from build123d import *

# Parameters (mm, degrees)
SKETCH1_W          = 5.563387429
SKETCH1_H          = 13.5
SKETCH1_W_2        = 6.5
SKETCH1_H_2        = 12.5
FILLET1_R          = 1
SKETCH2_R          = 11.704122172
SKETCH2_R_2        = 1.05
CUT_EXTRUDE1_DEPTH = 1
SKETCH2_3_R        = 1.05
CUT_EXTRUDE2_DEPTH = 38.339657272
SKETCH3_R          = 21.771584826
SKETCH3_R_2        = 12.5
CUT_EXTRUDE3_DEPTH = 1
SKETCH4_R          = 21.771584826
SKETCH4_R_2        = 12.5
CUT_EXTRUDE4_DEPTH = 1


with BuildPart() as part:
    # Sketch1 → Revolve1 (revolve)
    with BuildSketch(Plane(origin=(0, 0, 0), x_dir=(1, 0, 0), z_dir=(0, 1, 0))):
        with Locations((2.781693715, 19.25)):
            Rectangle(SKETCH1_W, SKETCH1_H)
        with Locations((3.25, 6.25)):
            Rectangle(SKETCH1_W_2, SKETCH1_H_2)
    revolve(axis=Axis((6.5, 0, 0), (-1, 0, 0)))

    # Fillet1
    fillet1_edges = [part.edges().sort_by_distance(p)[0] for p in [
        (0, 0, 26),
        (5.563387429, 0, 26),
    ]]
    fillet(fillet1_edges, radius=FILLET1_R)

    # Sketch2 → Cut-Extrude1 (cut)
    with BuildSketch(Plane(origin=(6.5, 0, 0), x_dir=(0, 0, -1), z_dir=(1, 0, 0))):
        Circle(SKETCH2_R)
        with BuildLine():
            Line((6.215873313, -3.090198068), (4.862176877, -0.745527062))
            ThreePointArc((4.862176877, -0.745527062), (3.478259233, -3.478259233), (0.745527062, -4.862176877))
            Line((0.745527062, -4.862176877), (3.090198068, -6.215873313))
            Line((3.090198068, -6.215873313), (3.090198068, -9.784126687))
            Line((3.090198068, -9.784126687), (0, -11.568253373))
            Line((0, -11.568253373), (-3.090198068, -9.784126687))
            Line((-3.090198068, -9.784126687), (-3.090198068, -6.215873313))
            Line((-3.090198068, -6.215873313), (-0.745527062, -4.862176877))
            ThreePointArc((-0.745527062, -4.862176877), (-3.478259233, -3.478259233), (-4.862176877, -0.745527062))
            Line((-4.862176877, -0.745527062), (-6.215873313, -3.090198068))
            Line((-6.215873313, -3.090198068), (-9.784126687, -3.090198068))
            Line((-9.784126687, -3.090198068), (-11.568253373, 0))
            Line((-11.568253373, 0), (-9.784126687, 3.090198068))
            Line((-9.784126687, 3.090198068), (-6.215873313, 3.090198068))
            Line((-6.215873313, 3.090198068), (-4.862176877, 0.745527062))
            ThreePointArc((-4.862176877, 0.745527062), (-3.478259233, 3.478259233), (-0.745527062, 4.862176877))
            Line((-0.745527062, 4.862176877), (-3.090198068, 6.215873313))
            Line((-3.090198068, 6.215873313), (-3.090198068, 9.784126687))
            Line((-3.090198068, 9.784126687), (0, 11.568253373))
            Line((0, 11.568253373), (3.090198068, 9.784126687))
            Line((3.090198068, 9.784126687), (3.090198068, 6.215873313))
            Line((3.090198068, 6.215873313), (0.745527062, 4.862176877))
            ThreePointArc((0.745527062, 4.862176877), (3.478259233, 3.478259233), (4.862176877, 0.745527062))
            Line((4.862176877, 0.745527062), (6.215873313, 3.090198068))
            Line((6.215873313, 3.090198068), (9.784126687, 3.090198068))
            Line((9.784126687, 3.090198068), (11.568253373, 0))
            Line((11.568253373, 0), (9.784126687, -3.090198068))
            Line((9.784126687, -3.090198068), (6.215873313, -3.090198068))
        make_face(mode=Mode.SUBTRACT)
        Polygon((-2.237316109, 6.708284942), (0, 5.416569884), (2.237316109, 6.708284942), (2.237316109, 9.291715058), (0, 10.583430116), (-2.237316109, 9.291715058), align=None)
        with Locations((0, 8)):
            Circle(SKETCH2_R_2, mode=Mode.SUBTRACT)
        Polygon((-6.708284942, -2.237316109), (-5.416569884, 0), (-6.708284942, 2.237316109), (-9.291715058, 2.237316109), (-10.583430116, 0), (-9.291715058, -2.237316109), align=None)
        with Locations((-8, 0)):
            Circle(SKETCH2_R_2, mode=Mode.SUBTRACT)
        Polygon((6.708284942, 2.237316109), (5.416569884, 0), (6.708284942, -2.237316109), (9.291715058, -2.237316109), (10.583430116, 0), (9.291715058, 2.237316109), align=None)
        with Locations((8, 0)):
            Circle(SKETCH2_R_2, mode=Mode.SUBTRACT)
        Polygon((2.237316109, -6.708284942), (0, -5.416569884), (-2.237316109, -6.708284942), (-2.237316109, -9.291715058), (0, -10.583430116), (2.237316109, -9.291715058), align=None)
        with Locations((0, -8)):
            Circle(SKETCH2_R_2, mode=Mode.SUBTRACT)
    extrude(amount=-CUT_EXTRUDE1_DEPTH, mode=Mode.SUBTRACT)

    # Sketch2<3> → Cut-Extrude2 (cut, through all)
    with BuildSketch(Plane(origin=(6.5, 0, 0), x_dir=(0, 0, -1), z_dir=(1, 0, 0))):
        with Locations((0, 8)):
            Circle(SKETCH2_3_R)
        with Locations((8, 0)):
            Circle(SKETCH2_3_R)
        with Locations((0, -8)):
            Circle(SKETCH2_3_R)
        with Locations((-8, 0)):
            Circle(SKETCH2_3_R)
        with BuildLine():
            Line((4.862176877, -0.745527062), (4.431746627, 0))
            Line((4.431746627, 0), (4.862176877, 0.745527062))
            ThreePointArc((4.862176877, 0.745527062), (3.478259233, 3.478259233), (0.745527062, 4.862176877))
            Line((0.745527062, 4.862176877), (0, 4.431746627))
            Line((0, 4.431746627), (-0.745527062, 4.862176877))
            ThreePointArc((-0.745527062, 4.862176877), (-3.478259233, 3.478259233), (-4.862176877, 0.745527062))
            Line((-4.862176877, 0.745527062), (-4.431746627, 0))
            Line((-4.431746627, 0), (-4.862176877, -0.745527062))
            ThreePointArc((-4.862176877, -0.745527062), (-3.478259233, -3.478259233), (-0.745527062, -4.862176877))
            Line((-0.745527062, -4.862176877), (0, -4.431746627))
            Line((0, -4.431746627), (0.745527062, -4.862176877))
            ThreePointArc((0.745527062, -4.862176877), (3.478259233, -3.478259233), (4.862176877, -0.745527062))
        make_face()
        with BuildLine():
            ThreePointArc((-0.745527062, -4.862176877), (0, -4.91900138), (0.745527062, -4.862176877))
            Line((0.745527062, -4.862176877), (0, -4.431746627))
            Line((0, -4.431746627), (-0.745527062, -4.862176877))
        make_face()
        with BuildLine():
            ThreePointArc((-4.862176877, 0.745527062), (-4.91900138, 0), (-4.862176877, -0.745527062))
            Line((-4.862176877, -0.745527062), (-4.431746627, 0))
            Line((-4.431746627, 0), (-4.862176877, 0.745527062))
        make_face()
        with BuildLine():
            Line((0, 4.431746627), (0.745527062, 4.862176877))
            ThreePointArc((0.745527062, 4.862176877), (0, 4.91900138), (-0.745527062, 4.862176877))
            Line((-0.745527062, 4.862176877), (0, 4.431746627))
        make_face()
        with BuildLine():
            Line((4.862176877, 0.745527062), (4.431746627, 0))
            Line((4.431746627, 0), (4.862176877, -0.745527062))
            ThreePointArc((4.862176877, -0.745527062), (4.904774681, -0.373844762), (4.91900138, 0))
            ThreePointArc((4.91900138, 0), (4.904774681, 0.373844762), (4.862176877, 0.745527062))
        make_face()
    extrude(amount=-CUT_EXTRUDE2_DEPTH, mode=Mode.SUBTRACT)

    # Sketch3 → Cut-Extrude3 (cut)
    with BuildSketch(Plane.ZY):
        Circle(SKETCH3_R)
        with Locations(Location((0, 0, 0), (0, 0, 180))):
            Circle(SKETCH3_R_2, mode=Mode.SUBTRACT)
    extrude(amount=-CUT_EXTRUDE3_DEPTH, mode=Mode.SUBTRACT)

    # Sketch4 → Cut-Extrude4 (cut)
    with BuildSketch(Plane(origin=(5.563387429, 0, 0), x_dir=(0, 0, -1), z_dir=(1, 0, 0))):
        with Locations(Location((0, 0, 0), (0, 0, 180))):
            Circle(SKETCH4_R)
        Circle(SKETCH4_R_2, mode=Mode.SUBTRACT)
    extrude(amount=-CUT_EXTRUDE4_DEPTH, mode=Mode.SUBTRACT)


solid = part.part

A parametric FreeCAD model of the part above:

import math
import FreeCAD as App
import Part
import Sketcher

V = App.Vector
Q = App.Units.Quantity


def edges_at(feature, points):
    """Names of the edges that pass closest to the given points."""
    edges = feature.Shape.Edges
    near = lambda p: min(range(len(edges)), key=lambda i: edges[i].distToShape(Part.Vertex(*p))[0])
    return sorted({f"Edge{near(p) + 1}" for p in points})

doc = App.newDocument("Part")
body = doc.addObject("PartDesign::Body", "Body")

sketch1 = body.newObject("Sketcher::SketchObject", "Sketch")
sketch1.AttachmentSupport = (doc.getObject("XZ_Plane"), [""])
sketch1.MapMode = "FlatFace"
sketch1.addGeometry([
    Part.LineSegment(V(0, -26, 0), V(0, 0, 0)),
    Part.LineSegment(V(0, 0, 0), V(6.5, 0, 0)),
    Part.LineSegment(V(6.5, 0, 0), V(6.5, -12.5, 0)),
    Part.LineSegment(V(6.5, -12.5, 0), V(5.563387, -12.5, 0)),
    Part.LineSegment(V(5.563387, -12.5, 0), V(5.563387, -26, 0)),
    Part.LineSegment(V(5.563387, -26, 0), V(0, -26, 0)),
], False)
sketch1.addConstraint([
    Sketcher.Constraint("Coincident", 0, 2, 1, 1),
    Sketcher.Constraint("Coincident", 1, 2, 2, 1),
    Sketcher.Constraint("Coincident", 2, 2, 3, 1),
    Sketcher.Constraint("Coincident", 3, 2, 4, 1),
    Sketcher.Constraint("Coincident", 4, 2, 5, 1),
    Sketcher.Constraint("Coincident", 5, 2, 0, 1),
    Sketcher.Constraint("Vertical", 0),
    Sketcher.Constraint("Horizontal", 1),
    Sketcher.Constraint("Vertical", 2),
    Sketcher.Constraint("Horizontal", 3),
    Sketcher.Constraint("Vertical", 4),
    Sketcher.Constraint("Horizontal", 5),
    Sketcher.Constraint("Coincident", 0, 2, -1, 1),
    Sketcher.Constraint("DistanceY", 0, 1, 0, 2, Q("26 mm")),
    Sketcher.Constraint("DistanceX", 1, 1, 1, 2, Q("6.5 mm")),
    Sketcher.Constraint("DistanceY", 2, 2, 2, 1, Q("12.5 mm")),
    Sketcher.Constraint("DistanceX", 3, 2, 3, 1, Q("0.936613 mm")),
])
revolution = body.newObject("PartDesign::Revolution", "Revolution")
revolution.Profile = sketch1
revolution.ReferenceAxis = (sketch1, ["H_Axis"])
revolution.Angle = 360
doc.recompute()

fillet = body.newObject("PartDesign::Fillet", "Fillet")
fillet.Base = (revolution, edges_at(revolution, [(0, 0, 26), (5.563, 0, 26)]))
fillet.Radius = 1

sketch2 = body.newObject("Sketcher::SketchObject", "Sketch001")
sketch2.AttachmentSupport = (doc.getObject("YZ_Plane"), [""])
sketch2.MapMode = "FlatFace"
sketch2.AttachmentOffset = App.Placement(V(0, 0, 6.5), App.Rotation())
sketch2.addGeometry([
    Part.Circle(V(0, 0, 0), V(0, 0, 1), 11.704122),
    Part.LineSegment(V(-3.090198, -9.784127, 0), V(-3.090198, -6.215873, 0)),
    Part.LineSegment(V(-3.090198, -6.215873, 0), V(-0.745527, -4.862177, 0)),
    Part.ArcOfCircle(Part.Circle(V(0, 0, 0), V(0, 0, 1), 4.919001), math.radians(-171.28262), math.radians(-98.71738)),
    Part.LineSegment(V(-4.862177, -0.745527, 0), V(-6.215873, -3.090198, 0)),
    Part.LineSegment(V(-6.215873, -3.090198, 0), V(-9.784127, -3.090198, 0)),
    Part.LineSegment(V(-9.784127, -3.090198, 0), V(-11.568253, 0, 0)),
    Part.LineSegment(V(-11.568253, 0, 0), V(-9.784127, 3.090198, 0)),
    Part.LineSegment(V(-9.784127, 3.090198, 0), V(-6.215873, 3.090198, 0)),
    Part.LineSegment(V(-6.215873, 3.090198, 0), V(-4.862177, 0.745527, 0)),
    Part.ArcOfCircle(Part.Circle(V(0, 0, 0), V(0, 0, 1), 4.919001), math.radians(98.71738), math.radians(171.28262)),
    Part.LineSegment(V(-0.745527, 4.862177, 0), V(-3.090198, 6.215873, 0)),
    Part.LineSegment(V(-3.090198, 6.215873, 0), V(-3.090198, 9.784127, 0)),
    Part.LineSegment(V(-3.090198, 9.784127, 0), V(0, 11.568253, 0)),
    Part.LineSegment(V(0, 11.568253, 0), V(3.090198, 9.784127, 0)),
    Part.LineSegment(V(3.090198, 9.784127, 0), V(3.090198, 6.215873, 0)),
    Part.LineSegment(V(3.090198, 6.215873, 0), V(0.745527, 4.862177, 0)),
    Part.ArcOfCircle(Part.Circle(V(0, 0, 0), V(0, 0, 1), 4.919001), math.radians(8.71738), math.radians(81.28262)),
    Part.LineSegment(V(4.862177, 0.745527, 0), V(6.215873, 3.090198, 0)),
    Part.LineSegment(V(6.215873, 3.090198, 0), V(9.784127, 3.090198, 0)),
    Part.LineSegment(V(9.784127, 3.090198, 0), V(11.568253, 0, 0)),
    Part.LineSegment(V(11.568253, 0, 0), V(9.784127, -3.090198, 0)),
    Part.LineSegment(V(9.784127, -3.090198, 0), V(6.215873, -3.090198, 0)),
    Part.LineSegment(V(6.215873, -3.090198, 0), V(4.862177, -0.745527, 0)),
    Part.ArcOfCircle(Part.Circle(V(0, 0, 0), V(0, 0, 1), 4.919001), math.radians(-81.28262), math.radians(-8.71738)),
    Part.LineSegment(V(0.745527, -4.862177, 0), V(3.090198, -6.215873, 0)),
    Part.LineSegment(V(3.090198, -6.215873, 0), V(3.090198, -9.784127, 0)),
    Part.LineSegment(V(3.090198, -9.784127, 0), V(0, -11.568253, 0)),
    Part.LineSegment(V(0, -11.568253, 0), V(-3.090198, -9.784127, 0)),
    Part.LineSegment(V(6.708285, 2.237316, 0), V(5.41657, 0, 0)),
    Part.LineSegment(V(5.41657, 0, 0), V(6.708285, -2.237316, 0)),
    Part.LineSegment(V(6.708285, -2.237316, 0), V(9.291715, -2.237316, 0)),
    Part.LineSegment(V(9.291715, -2.237316, 0), V(10.58343, 0, 0)),
    Part.LineSegment(V(10.58343, 0, 0), V(9.291715, 2.237316, 0)),
    Part.LineSegment(V(9.291715, 2.237316, 0), V(6.708285, 2.237316, 0)),
    Part.Circle(V(8, 0, 0), V(0, 0, 1), 1.05),
    Part.LineSegment(V(-2.237316, 6.708285, 0), V(0, 5.41657, 0)),
    Part.LineSegment(V(0, 5.41657, 0), V(2.237316, 6.708285, 0)),
    Part.LineSegment(V(2.237316, 6.708285, 0), V(2.237316, 9.291715, 0)),
    Part.LineSegment(V(2.237316, 9.291715, 0), V(0, 10.58343, 0)),
    Part.LineSegment(V(0, 10.58343, 0), V(-2.237316, 9.291715, 0)),
    Part.LineSegment(V(-2.237316, 9.291715, 0), V(-2.237316, 6.708285, 0)),
    Part.Circle(V(0, 8, 0), V(0, 0, 1), 1.05),
    Part.LineSegment(V(2.237316, -6.708285, 0), V(0, -5.41657, 0)),
    Part.LineSegment(V(0, -5.41657, 0), V(-2.237316, -6.708285, 0)),
    Part.LineSegment(V(-2.237316, -6.708285, 0), V(-2.237316, -9.291715, 0)),
    Part.LineSegment(V(-2.237316, -9.291715, 0), V(0, -10.58343, 0)),
    Part.LineSegment(V(0, -10.58343, 0), V(2.237316, -9.291715, 0)),
    Part.LineSegment(V(2.237316, -9.291715, 0), V(2.237316, -6.708285, 0)),
    Part.Circle(V(0, -8, 0), V(0, 0, 1), 1.05),
    Part.LineSegment(V(-6.708285, -2.237316, 0), V(-5.41657, 0, 0)),
    Part.LineSegment(V(-5.41657, 0, 0), V(-6.708285, 2.237316, 0)),
    Part.LineSegment(V(-6.708285, 2.237316, 0), V(-9.291715, 2.237316, 0)),
    Part.LineSegment(V(-9.291715, 2.237316, 0), V(-10.58343, 0, 0)),
    Part.LineSegment(V(-10.58343, 0, 0), V(-9.291715, -2.237316, 0)),
    Part.LineSegment(V(-9.291715, -2.237316, 0), V(-6.708285, -2.237316, 0)),
    Part.Circle(V(-8, 0, 0), V(0, 0, 1), 1.05),
], False)
sketch2.addConstraint([
    Sketcher.Constraint("Coincident", 1, 2, 2, 1),
    Sketcher.Constraint("Coincident", 2, 2, 3, 2),
    Sketcher.Constraint("Coincident", 3, 1, 4, 1),
    Sketcher.Constraint("Coincident", 4, 2, 5, 1),
    Sketcher.Constraint("Coincident", 5, 2, 6, 1),
    Sketcher.Constraint("Coincident", 6, 2, 7, 1),
    Sketcher.Constraint("Coincident", 7, 2, 8, 1),
    Sketcher.Constraint("Coincident", 8, 2, 9, 1),
    Sketcher.Constraint("Coincident", 9, 2, 10, 2),
    Sketcher.Constraint("Coincident", 10, 1, 11, 1),
    Sketcher.Constraint("Coincident", 11, 2, 12, 1),
    Sketcher.Constraint("Coincident", 12, 2, 13, 1),
    Sketcher.Constraint("Coincident", 13, 2, 14, 1),
    Sketcher.Constraint("Coincident", 14, 2, 15, 1),
    Sketcher.Constraint("Coincident", 15, 2, 16, 1),
    Sketcher.Constraint("Coincident", 16, 2, 17, 2),
    Sketcher.Constraint("Coincident", 17, 1, 18, 1),
    Sketcher.Constraint("Coincident", 18, 2, 19, 1),
    Sketcher.Constraint("Coincident", 19, 2, 20, 1),
    Sketcher.Constraint("Coincident", 20, 2, 21, 1),
    Sketcher.Constraint("Coincident", 21, 2, 22, 1),
    Sketcher.Constraint("Coincident", 22, 2, 23, 1),
    Sketcher.Constraint("Coincident", 23, 2, 24, 2),
    Sketcher.Constraint("Coincident", 24, 1, 25, 1),
    Sketcher.Constraint("Coincident", 25, 2, 26, 1),
    Sketcher.Constraint("Coincident", 26, 2, 27, 1),
    Sketcher.Constraint("Coincident", 27, 2, 28, 1),
    Sketcher.Constraint("Coincident", 28, 2, 1, 1),
    Sketcher.Constraint("Coincident", 29, 2, 30, 1),
    Sketcher.Constraint("Coincident", 30, 2, 31, 1),
    Sketcher.Constraint("Coincident", 31, 2, 32, 1),
    Sketcher.Constraint("Coincident", 32, 2, 33, 1),
    Sketcher.Constraint("Coincident", 33, 2, 34, 1),
    Sketcher.Constraint("Coincident", 34, 2, 29, 1),
    Sketcher.Constraint("Coincident", 36, 2, 37, 1),
    Sketcher.Constraint("Coincident", 37, 2, 38, 1),
    Sketcher.Constraint("Coincident", 38, 2, 39, 1),
    Sketcher.Constraint("Coincident", 39, 2, 40, 1),
    Sketcher.Constraint("Coincident", 40, 2, 41, 1),
    Sketcher.Constraint("Coincident", 41, 2, 36, 1),
    Sketcher.Constraint("Coincident", 43, 2, 44, 1),
    Sketcher.Constraint("Coincident", 44, 2, 45, 1),
    Sketcher.Constraint("Coincident", 45, 2, 46, 1),
    Sketcher.Constraint("Coincident", 46, 2, 47, 1),
    Sketcher.Constraint("Coincident", 47, 2, 48, 1),
    Sketcher.Constraint("Coincident", 48, 2, 43, 1),
    Sketcher.Constraint("Coincident", 50, 2, 51, 1),
    Sketcher.Constraint("Coincident", 51, 2, 52, 1),
    Sketcher.Constraint("Coincident", 52, 2, 53, 1),
    Sketcher.Constraint("Coincident", 53, 2, 54, 1),
    Sketcher.Constraint("Coincident", 54, 2, 55, 1),
    Sketcher.Constraint("Coincident", 55, 2, 50, 1),
    Sketcher.Constraint("Vertical", 1),
    Sketcher.Constraint("Horizontal", 5),
    Sketcher.Constraint("Horizontal", 8),
    Sketcher.Constraint("Vertical", 12),
    Sketcher.Constraint("Vertical", 15),
    Sketcher.Constraint("Horizontal", 19),
    Sketcher.Constraint("Horizontal", 22),
    Sketcher.Constraint("Vertical", 26),
    Sketcher.Constraint("Horizontal", 31),
    Sketcher.Constraint("Horizontal", 34),
    Sketcher.Constraint("Vertical", 38),
    Sketcher.Constraint("Vertical", 41),
    Sketcher.Constraint("Vertical", 45),
    Sketcher.Constraint("Vertical", 48),
    Sketcher.Constraint("Horizontal", 52),
    Sketcher.Constraint("Horizontal", 55),
    Sketcher.Constraint("Coincident", 0, 3, -1, 1),
    Sketcher.Constraint("Coincident", 3, 3, -1, 1),
    Sketcher.Constraint("Coincident", 10, 3, -1, 1),
    Sketcher.Constraint("Coincident", 17, 3, -1, 1),
    Sketcher.Constraint("Coincident", 24, 3, -1, 1),
    Sketcher.Constraint("Equal", 3, 10),
    Sketcher.Constraint("Equal", 10, 17),
    Sketcher.Constraint("Equal", 17, 24),
    Sketcher.Constraint("Equal", 35, 42),
    Sketcher.Constraint("Equal", 42, 49),
    Sketcher.Constraint("Equal", 49, 56),
    Sketcher.Constraint("Symmetric", 42, 3, 49, 3, -1, 1),
    Sketcher.Constraint("Symmetric", 35, 3, 56, 3, -1, 1),
    Sketcher.Constraint("Symmetric", 1, 2, 15, 2, -1, 1),
    Sketcher.Constraint("Symmetric", 4, 2, 18, 2, -1, 1),
    Sketcher.Constraint("Symmetric", 6, 2, 20, 2, -1, 1),
    Sketcher.Constraint("Symmetric", 7, 2, 21, 2, -1, 1),
    Sketcher.Constraint("Symmetric", 11, 2, 25, 2, -1, 1),
    Sketcher.Constraint("Symmetric", 13, 2, 27, 2, -1, 1),
    Sketcher.Constraint("Symmetric", 36, 2, 43, 2, -1, 1),
    Sketcher.Constraint("Symmetric", 37, 2, 44, 2, -1, 1),
    Sketcher.Constraint("Symmetric", 39, 2, 46, 2, -1, 1),
    Sketcher.Constraint("Symmetric", 40, 2, 47, 2, -1, 1),
    Sketcher.Constraint("Symmetric", 29, 2, 50, 2, -1, 1),
    Sketcher.Constraint("Symmetric", 30, 2, 51, 2, -1, 1),
    Sketcher.Constraint("Symmetric", 32, 2, 53, 2, -1, 1),
    Sketcher.Constraint("Symmetric", 33, 2, 54, 2, -1, 1),
    Sketcher.Constraint("Symmetric", 12, 2, 14, 2, -2),
    Sketcher.Constraint("Symmetric", 8, 2, 18, 2, -2),
    Sketcher.Constraint("Symmetric", 38, 2, 40, 2, -2),
    Sketcher.Constraint("Symmetric", 34, 2, 51, 2, -2),
    Sketcher.Constraint("PointOnObject", 35, 3, -1),
    Sketcher.Constraint("PointOnObject", 42, 3, -2),
    Sketcher.Constraint("PointOnObject", 6, 2, -1),
    Sketcher.Constraint("PointOnObject", 13, 2, -2),
    Sketcher.Constraint("PointOnObject", 29, 2, -1),
    Sketcher.Constraint("PointOnObject", 32, 2, -1),
    Sketcher.Constraint("PointOnObject", 36, 2, -2),
    Sketcher.Constraint("PointOnObject", 39, 2, -2),
    Sketcher.Constraint("Perpendicular", 2, 6),
    Sketcher.Constraint("Parallel", 4, 7),
    Sketcher.Constraint("Parallel", 6, 9),
    Sketcher.Constraint("Perpendicular", 7, 11),
    Sketcher.Constraint("Perpendicular", 9, 13),
    Sketcher.Constraint("Parallel", 11, 14),
    Sketcher.Constraint("Parallel", 13, 16),
    Sketcher.Constraint("Perpendicular", 14, 18),
    Sketcher.Constraint("Perpendicular", 16, 20),
    Sketcher.Constraint("Parallel", 20, 23),
    Sketcher.Constraint("Perpendicular", 21, 25),
    Sketcher.Constraint("Perpendicular", 23, 27),
    Sketcher.Constraint("Parallel", 25, 28),
    Sketcher.Constraint("Perpendicular", 28, 29),
    Sketcher.Constraint("Parallel", 29, 32),
    Sketcher.Constraint("Parallel", 30, 33),
    Sketcher.Constraint("Perpendicular", 32, 36),
    Sketcher.Constraint("Perpendicular", 33, 37),
    Sketcher.Constraint("Parallel", 36, 39),
    Sketcher.Constraint("Parallel", 39, 43),
    Sketcher.Constraint("Parallel", 43, 46),
    Sketcher.Constraint("Perpendicular", 46, 50),
    Sketcher.Constraint("Parallel", 50, 53),
    Sketcher.Constraint("Horizontal", 11, 2, 15, 2),
    Sketcher.Constraint("Horizontal", 3, 1, 23, 2),
    Sketcher.Constraint("Equal", 22, 1),
    Sketcher.Constraint("Equal", 55, 38),
    Sketcher.Constraint("Equal", 2, 4),
    Sketcher.Constraint("Equal", 7, 13),
    Sketcher.Constraint("Equal", 33, 36),
    Sketcher.Constraint("Diameter", 35, Q("2.1 mm")),
    Sketcher.Constraint("Angle", 2, Q("30 deg")),
    Sketcher.Constraint("DistanceX", -1, 1, 35, 3, Q("8 mm")),
    Sketcher.Constraint("DistanceY", -1, 1, 42, 3, Q("8 mm")),
    Sketcher.Constraint("Radius", 3, Q("4.919001 mm")),
    Sketcher.Constraint("Diameter", 0, Q("23.408244 mm")),
    Sketcher.Constraint("DistanceX", 31, 1, 31, 2, Q("2.58343 mm")),
    Sketcher.Constraint("DistanceX", 1, 2, -1, 1, Q("3.090198 mm")),
    Sketcher.Constraint("Distance", 29, Q("2.58343 mm")),
    Sketcher.Constraint("DistanceX", 5, 2, 5, 1, Q("3.568253 mm")),
    Sketcher.Constraint("DistanceX", -1, 1, 29, 2, Q("5.41657 mm")),
    Sketcher.Constraint("DistanceY", -1, 1, 36, 2, Q("5.41657 mm")),
    Sketcher.Constraint("Distance", 2, Q("2.707393 mm")),
])
pocket1 = body.newObject("PartDesign::Pocket", "Pocket")
pocket1.Profile = sketch2
pocket1.Length = 1

sketch3 = body.newObject("Sketcher::SketchObject", "Sketch002")
sketch3.AttachmentSupport = (doc.getObject("YZ_Plane"), [""])
sketch3.MapMode = "FlatFace"
sketch3.AttachmentOffset = App.Placement(V(0, 0, 6.5), App.Rotation())
sketch3.addGeometry([
    Part.Circle(V(8, 0, 0), V(0, 0, 1), 1.05),
    Part.Circle(V(0, -8, 0), V(0, 0, 1), 1.05),
    Part.Circle(V(-8, 0, 0), V(0, 0, 1), 1.05),
    Part.Circle(V(0, 8, 0), V(0, 0, 1), 1.05),
    Part.ArcOfCircle(Part.Circle(V(0, 0, 0), V(0, 0, 1), 4.919001), math.radians(-81.28262), math.radians(-8.71738)),
    Part.ArcOfCircle(Part.Circle(V(0, 0, 0), V(0, 0, 1), 4.919001), math.radians(-8.717379), math.radians(8.717379)),
    Part.ArcOfCircle(Part.Circle(V(0, 0, 0), V(0, 0, 1), 4.919001), math.radians(8.71738), math.radians(81.28262)),
    Part.ArcOfCircle(Part.Circle(V(0, 0, 0), V(0, 0, 1), 4.919001), math.radians(81.282621), math.radians(98.717379)),
    Part.ArcOfCircle(Part.Circle(V(0, 0, 0), V(0, 0, 1), 4.919001), math.radians(98.71738), math.radians(171.28262)),
    Part.ArcOfCircle(Part.Circle(V(0, 0, 0), V(0, 0, 1), 4.919001), math.radians(171.282621), math.radians(188.717379)),
    Part.ArcOfCircle(Part.Circle(V(0, 0, 0), V(0, 0, 1), 4.919001), math.radians(-171.28262), math.radians(-98.71738)),
    Part.ArcOfCircle(Part.Circle(V(0, 0, 0), V(0, 0, 1), 4.919001), math.radians(-98.717379), math.radians(-90)),
    Part.ArcOfCircle(Part.Circle(V(0, 0, 0), V(0, 0, 1), 4.919001), math.radians(-90), math.radians(-81.282621)),
], False)
sketch3.addConstraint([
    Sketcher.Constraint("Tangent", 4, 2, 5, 1),
    Sketcher.Constraint("Tangent", 5, 2, 6, 1),
    Sketcher.Constraint("Tangent", 6, 2, 7, 1),
    Sketcher.Constraint("Tangent", 7, 2, 8, 1),
    Sketcher.Constraint("Tangent", 8, 2, 9, 1),
    Sketcher.Constraint("Tangent", 9, 2, 10, 1),
    Sketcher.Constraint("Tangent", 10, 2, 11, 1),
    Sketcher.Constraint("Tangent", 11, 2, 12, 1),
    Sketcher.Constraint("Tangent", 12, 2, 4, 1),
    Sketcher.Constraint("Coincident", 4, 3, -1, 1),
    Sketcher.Constraint("Coincident", 6, 3, -1, 1),
    Sketcher.Constraint("Coincident", 8, 3, -1, 1),
    Sketcher.Constraint("Coincident", 10, 3, -1, 1),
    Sketcher.Constraint("Equal", 0, 1),
    Sketcher.Constraint("Equal", 1, 2),
    Sketcher.Constraint("Equal", 2, 3),
    Sketcher.Constraint("Symmetric", 0, 3, 2, 3, -1, 1),
    Sketcher.Constraint("Symmetric", 1, 3, 3, 3, -1, 1),
    Sketcher.Constraint("PointOnObject", 0, 3, -1),
    Sketcher.Constraint("PointOnObject", 1, 3, -2),
    Sketcher.Constraint("PointOnObject", 11, 2, -2),
    Sketcher.Constraint("Horizontal", 6, 2, 7, 2),
    Sketcher.Constraint("Horizontal", 5, 2, 8, 2),
    Sketcher.Constraint("Horizontal", 4, 2, 9, 2),
    Sketcher.Constraint("Horizontal", 10, 2, 12, 2),
    Sketcher.Constraint("Vertical", 4, 2, 5, 2),
    Sketcher.Constraint("Vertical", 7, 2, 10, 2),
    Sketcher.Constraint("Diameter", 0, Q("2.1 mm")),
    Sketcher.Constraint("DistanceX", -1, 1, 0, 3, Q("8 mm")),
    Sketcher.Constraint("DistanceY", 1, 3, -1, 1, Q("8 mm")),
    Sketcher.Constraint("Radius", 4, Q("4.919001 mm")),
    Sketcher.Constraint("DistanceX", -1, 1, 4, 2, Q("4.862177 mm")),
    Sketcher.Constraint("DistanceX", -1, 1, 6, 2, Q("0.745527 mm")),
])
pocket2 = body.newObject("PartDesign::Pocket", "Pocket001")
pocket2.Profile = sketch3
pocket2.Type = "ThroughAll"

sketch4 = body.newObject("Sketcher::SketchObject", "Sketch003")
sketch4.AttachmentSupport = (doc.getObject("YZ_Plane"), [""])
sketch4.MapMode = "FlatFace"
sketch4.addGeometry([
    Part.Circle(V(0, 0, 0), V(0, 0, 1), 21.771585),
    Part.Circle(V(0, 0, 0), V(0, 0, 1), 12.5),
], False)
sketch4.addConstraint([
    Sketcher.Constraint("Coincident", 0, 3, -1, 1),
    Sketcher.Constraint("Coincident", 1, 3, -1, 1),
    Sketcher.Constraint("Diameter", 1, Q("25 mm")),
    Sketcher.Constraint("Diameter", 0, Q("43.54317 mm")),
])
pocket3 = body.newObject("PartDesign::Pocket", "Pocket002")
pocket3.Profile = sketch4
pocket3.Length = 1
pocket3.Reversed = True

sketch5 = body.newObject("Sketcher::SketchObject", "Sketch004")
sketch5.AttachmentSupport = (doc.getObject("YZ_Plane"), [""])
sketch5.MapMode = "FlatFace"
sketch5.AttachmentOffset = App.Placement(V(0, 0, 5.563387), App.Rotation())
sketch5.addGeometry([
    Part.Circle(V(0, 0, 0), V(0, 0, 1), 21.771585),
    Part.Circle(V(0, 0, 0), V(0, 0, 1), 12.5),
], False)
sketch5.addConstraint([
    Sketcher.Constraint("Coincident", 0, 3, -1, 1),
    Sketcher.Constraint("Coincident", 1, 3, -1, 1),
    Sketcher.Constraint("Diameter", 1, Q("25 mm")),
    Sketcher.Constraint("Diameter", 0, Q("43.54317 mm")),
])
pocket4 = body.newObject("PartDesign::Pocket", "Pocket003")
pocket4.Profile = sketch5
pocket4.Length = 1

doc.recompute()
